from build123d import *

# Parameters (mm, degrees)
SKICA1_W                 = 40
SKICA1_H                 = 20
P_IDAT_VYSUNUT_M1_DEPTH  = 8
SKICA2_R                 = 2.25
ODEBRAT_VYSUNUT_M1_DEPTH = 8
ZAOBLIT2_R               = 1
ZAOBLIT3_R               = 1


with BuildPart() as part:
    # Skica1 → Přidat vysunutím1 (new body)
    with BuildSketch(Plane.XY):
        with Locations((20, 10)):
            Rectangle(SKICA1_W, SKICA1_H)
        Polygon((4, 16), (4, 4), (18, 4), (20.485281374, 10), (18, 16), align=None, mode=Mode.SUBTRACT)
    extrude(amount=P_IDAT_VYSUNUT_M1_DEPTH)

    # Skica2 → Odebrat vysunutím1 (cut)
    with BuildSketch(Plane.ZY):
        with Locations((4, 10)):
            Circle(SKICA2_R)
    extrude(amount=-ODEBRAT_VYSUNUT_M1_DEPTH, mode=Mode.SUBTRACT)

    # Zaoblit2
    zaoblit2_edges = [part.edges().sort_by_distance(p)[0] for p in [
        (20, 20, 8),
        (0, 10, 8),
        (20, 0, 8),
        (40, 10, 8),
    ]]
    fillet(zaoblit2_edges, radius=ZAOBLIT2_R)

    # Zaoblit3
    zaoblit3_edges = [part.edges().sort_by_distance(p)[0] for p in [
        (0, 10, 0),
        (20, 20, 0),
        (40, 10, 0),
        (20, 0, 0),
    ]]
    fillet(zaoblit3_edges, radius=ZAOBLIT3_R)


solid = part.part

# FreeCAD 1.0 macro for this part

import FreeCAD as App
import Part
import Sketcher
Q = App.Units.Quantity


def edges_at(feature, points):
    """Names of the edges that pass closest to the given points."""
    edges = feature.Shape.Edges
    near = lambda p: min(range(len(edges)), key=lambda i: edges[i].distToShape(Part.Vertex(*p))[0])
    return sorted({f"Edge{near(p) + 1}" for p in points})

doc = App.newDocument("Part")
params = doc.addObject("Spreadsheet::Sheet", "Params")
for row, (alias, value) in enumerate([
    ("sketch1_width", "40 mm"),
    ("sketch1_width2", "14 mm"),
    ("sketch1_height", "20 mm"),
    ("sketch1_height2", "12 mm"),
    ("pad1_length", "8 mm"),
    ("sketch2_diameter", "4.5 mm"),
    ("pocket1_length", "8 mm"),
    ("fillet_radius", "1 mm"),
    ("fillet2_radius", "1 mm"),
], start=1):
    params.set(f"A{row}", alias)
    params.set(f"B{row}", "=" + value)
    params.setAlias(f"B{row}", alias)

body = doc.addObject("PartDesign::Body", "Body")

# Sketch on XY plane
sketch1 = body.newObject("Sketcher::SketchObject", "Sketch")
sketch1.AttachmentSupport = (doc.getObject("XY_Plane"), [""])
sketch1.MapMode = "FlatFace"
sketch1.addGeometry([
    Part.LineSegment(App.Vector(0, 20, 0), App.Vector(0, 0, 0)),  # 0
    Part.LineSegment(App.Vector(0, 0, 0), App.Vector(40, 0, 0)),  # 1
    Part.LineSegment(App.Vector(40, 0, 0), App.Vector(40, 20, 0)),  # 2
    Part.LineSegment(App.Vector(40, 20, 0), App.Vector(0, 20, 0)),  # 3
    Part.LineSegment(App.Vector(4, 4, 0), App.Vector(4, 16, 0)),  # 4
    Part.LineSegment(App.Vector(4, 16, 0), App.Vector(18, 16, 0)),  # 5
    Part.LineSegment(App.Vector(18, 16, 0), App.Vector(20, 10, 0)),  # 6
    Part.LineSegment(App.Vector(20, 10, 0), App.Vector(18, 4, 0)),  # 7
    Part.LineSegment(App.Vector(18, 4, 0), App.Vector(4, 4, 0)),  # 8
], False)
sketch1.addConstraint([
    Sketcher.Constraint("Coincident", 0, 2, 1, 1),
    Sketcher.Constraint("Coincident", 1, 2, 2, 1),
    Sketcher.Constraint("Coincident", 2, 2, 3, 1),
    Sketcher.Constraint("Coincident", 3, 2, 0, 1),
    Sketcher.Constraint("Coincident", 4, 2, 5, 1),
    Sketcher.Constraint("Coincident", 5, 2, 6, 1),
    Sketcher.Constraint("Coincident", 6, 2, 7, 1),
    Sketcher.Constraint("Coincident", 7, 2, 8, 1),
    Sketcher.Constraint("Coincident", 8, 2, 4, 1),
    Sketcher.Constraint("Vertical", 0),
    Sketcher.Constraint("Horizontal", 1),
    Sketcher.Constraint("Vertical", 2),
    Sketcher.Constraint("Horizontal", 3),
    Sketcher.Constraint("Vertical", 4),
    Sketcher.Constraint("Horizontal", 5),
    Sketcher.Constraint("Horizontal", 8),
    Sketcher.Constraint("Coincident", 0, 2, -1, 1),
    Sketcher.Constraint("Vertical", 5, 2, 7, 2),
    Sketcher.Constraint("Equal", 6, 7),
    Sketcher.Constraint("DistanceX", 1, 1, 1, 2, 40.0),
    Sketcher.Constraint("DistanceX", 5, 1, 5, 2, 14.0),
    Sketcher.Constraint("DistanceY", 0, 2, 0, 1, 20.0),
    Sketcher.Constraint("DistanceY", 4, 1, 4, 2, 12.0),
    Sketcher.Constraint("DistanceX", -1, 1, 4, 2, 4.0),
    Sketcher.Constraint("DistanceY", -1, 1, 4, 2, 16.0),
    Sketcher.Constraint("Angle", 6, Q("-67.5 deg")),
])
sketch1.setExpression("Constraints[19]", "Params.sketch1_width")
sketch1.setExpression("Constraints[20]", "Params.sketch1_width2")
sketch1.setExpression("Constraints[21]", "Params.sketch1_height")
sketch1.setExpression("Constraints[22]", "Params.sketch1_height2")
pad1 = body.newObject("PartDesign::Pad", "Pad")
pad1.Profile = sketch1
pad1.setExpression("Length", "Params.pad1_length")

# Sketch on YZ plane
sketch2 = body.newObject("Sketcher::SketchObject", "Sketch001")
sketch2.AttachmentSupport = (doc.getObject("YZ_Plane"), [""])
sketch2.MapMode = "FlatFace"
sketch2.addGeometry(Part.Circle(App.Vector(10, 4, 0), App.Vector(0, 0, 1), 2.2), False)
sketch2.addConstraint([
    Sketcher.Constraint("Diameter", 0, 4.5),
    Sketcher.Constraint("DistanceX", -1, 1, 0, 3, 10.0),
    Sketcher.Constraint("DistanceY", -1, 1, 0, 3, 4.0),
])
sketch2.setExpression("Constraints[0]", "Params.sketch2_diameter")
pocket1 = body.newObject("PartDesign::Pocket", "Pocket")
pocket1.Profile = sketch2
pocket1.setExpression("Length", "Params.pocket1_length")
pocket1.Reversed = True
doc.recompute()

fillet = body.newObject("PartDesign::Fillet", "Fillet")
fillet.Base = (pocket1, edges_at(pocket1, [
    (20, 20, 8),
    (0, 10, 8),
    (20, 0, 8),
    (40, 10, 8),
]))
fillet.setExpression("Radius", "Params.fillet_radius")
doc.recompute()

fillet2 = body.newObject("PartDesign::Fillet", "Fillet001")
fillet2.Base = (fillet, edges_at(fillet, [
    (0, 10, 0),
    (20, 20, 0),
    (40, 10, 0),
    (20, 0, 0),
]))
fillet2.setExpression("Radius", "Params.fillet2_radius")

doc.recompute()
